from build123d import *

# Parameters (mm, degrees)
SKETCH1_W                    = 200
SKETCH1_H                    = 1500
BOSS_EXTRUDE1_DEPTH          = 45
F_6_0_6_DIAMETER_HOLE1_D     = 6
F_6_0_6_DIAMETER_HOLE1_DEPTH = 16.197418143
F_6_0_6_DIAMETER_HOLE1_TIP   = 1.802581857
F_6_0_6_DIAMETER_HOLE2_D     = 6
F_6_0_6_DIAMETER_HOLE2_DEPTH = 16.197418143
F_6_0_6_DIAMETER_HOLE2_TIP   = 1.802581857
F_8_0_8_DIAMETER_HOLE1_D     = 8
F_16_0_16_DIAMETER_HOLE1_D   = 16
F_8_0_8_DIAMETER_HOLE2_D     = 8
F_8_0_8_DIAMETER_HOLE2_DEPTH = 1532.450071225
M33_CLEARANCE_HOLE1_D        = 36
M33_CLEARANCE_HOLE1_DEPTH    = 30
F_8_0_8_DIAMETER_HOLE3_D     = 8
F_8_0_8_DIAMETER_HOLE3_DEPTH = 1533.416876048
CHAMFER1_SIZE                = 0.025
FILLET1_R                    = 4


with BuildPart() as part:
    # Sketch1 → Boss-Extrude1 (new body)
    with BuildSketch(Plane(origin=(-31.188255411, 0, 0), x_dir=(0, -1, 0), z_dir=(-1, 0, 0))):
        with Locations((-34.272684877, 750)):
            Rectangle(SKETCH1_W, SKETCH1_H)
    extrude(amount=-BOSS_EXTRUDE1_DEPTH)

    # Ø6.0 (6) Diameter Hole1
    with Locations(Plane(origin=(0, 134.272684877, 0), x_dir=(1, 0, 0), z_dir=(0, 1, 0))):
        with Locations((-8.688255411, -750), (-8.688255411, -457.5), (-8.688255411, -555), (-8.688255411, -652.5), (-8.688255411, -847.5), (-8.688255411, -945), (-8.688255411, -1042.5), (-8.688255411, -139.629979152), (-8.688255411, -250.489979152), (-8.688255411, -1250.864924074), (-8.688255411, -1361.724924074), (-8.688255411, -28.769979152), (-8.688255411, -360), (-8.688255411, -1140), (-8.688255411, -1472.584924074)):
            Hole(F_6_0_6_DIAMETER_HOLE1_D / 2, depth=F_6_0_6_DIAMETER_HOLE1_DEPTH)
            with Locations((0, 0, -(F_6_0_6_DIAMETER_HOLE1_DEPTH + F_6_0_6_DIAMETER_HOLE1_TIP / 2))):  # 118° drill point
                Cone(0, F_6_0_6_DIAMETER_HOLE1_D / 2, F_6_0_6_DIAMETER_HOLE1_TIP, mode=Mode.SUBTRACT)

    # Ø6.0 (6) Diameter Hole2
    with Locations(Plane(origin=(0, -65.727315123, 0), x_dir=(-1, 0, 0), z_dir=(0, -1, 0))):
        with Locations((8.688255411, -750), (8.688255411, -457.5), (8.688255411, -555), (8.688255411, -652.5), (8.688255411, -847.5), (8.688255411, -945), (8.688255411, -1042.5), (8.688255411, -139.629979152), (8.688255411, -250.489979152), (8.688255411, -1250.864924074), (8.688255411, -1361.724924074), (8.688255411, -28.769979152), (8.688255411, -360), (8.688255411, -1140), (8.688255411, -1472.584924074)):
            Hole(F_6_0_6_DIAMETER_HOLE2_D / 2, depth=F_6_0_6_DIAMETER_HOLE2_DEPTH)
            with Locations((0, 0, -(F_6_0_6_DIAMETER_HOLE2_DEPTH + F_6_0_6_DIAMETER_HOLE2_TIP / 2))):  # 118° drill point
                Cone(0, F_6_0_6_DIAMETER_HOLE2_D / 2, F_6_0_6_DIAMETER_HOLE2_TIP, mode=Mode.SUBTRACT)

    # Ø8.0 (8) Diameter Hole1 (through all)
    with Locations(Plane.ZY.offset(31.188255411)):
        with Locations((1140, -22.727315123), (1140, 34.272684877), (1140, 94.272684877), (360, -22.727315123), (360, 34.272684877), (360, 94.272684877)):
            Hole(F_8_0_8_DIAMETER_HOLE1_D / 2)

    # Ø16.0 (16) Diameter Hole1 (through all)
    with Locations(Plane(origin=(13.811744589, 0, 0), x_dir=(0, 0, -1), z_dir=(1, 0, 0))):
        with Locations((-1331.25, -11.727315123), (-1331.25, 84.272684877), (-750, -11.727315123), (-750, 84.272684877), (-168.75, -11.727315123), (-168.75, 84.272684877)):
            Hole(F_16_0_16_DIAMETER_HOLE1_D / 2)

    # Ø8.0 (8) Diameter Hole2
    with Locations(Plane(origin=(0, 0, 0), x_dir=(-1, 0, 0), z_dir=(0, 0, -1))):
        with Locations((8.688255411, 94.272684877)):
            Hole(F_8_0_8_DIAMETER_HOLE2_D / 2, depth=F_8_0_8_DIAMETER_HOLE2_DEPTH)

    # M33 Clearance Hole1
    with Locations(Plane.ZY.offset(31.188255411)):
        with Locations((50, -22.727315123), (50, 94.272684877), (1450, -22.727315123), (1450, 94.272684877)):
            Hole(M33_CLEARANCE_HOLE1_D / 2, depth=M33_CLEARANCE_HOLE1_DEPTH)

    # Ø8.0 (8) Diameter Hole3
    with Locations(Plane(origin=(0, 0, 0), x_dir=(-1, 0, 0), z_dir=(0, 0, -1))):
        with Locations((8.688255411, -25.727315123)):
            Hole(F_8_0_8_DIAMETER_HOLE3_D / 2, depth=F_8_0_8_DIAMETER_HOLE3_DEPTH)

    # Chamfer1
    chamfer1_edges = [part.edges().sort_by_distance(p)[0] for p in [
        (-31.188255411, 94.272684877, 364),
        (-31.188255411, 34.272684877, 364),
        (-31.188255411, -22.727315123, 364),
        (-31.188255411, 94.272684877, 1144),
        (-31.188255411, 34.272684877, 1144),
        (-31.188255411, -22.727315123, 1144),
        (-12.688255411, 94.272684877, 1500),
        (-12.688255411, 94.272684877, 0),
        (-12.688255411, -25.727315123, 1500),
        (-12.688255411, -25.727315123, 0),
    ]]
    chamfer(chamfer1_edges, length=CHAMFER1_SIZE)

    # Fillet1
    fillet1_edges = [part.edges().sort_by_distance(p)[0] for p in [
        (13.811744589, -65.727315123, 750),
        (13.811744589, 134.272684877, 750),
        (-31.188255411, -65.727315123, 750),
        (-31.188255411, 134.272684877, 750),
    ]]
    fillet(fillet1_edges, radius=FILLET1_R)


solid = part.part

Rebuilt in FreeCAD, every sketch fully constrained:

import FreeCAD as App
import Part
import Sketcher
from FreeCAD import Vector


def edges_at(feature, points):
    """Names of the edges that pass closest to the given points."""
    edges = feature.Shape.Edges
    near = lambda p: min(range(len(edges)), key=lambda i: edges[i].distToShape(Part.Vertex(*p))[0])
    return sorted({f"Edge{near(p) + 1}" for p in points})

doc = App.newDocument("Part")
body = doc.addObject("PartDesign::Body", "Body")

# Sketch on YZ plane
sketch1 = doc.addObject("Sketcher::SketchObject", "Sketch")
body.addObject(sketch1)
sketch1.AttachmentSupport = (doc.YZ_Plane, [""])
sketch1.MapMode = "FlatFace"
sketch1.AttachmentOffset = App.Placement(Vector(0, 0, -31.188255), App.Rotation())
sketch1.addGeometry([
    Part.LineSegment(Vector(134.272685, 1500, 0), Vector(134.272685, 0, 0)),
    Part.LineSegment(Vector(134.272685, 0, 0), Vector(-65.727315, 0, 0)),
    Part.LineSegment(Vector(-65.727315, 0, 0), Vector(-65.727315, 1500, 0)),
    Part.LineSegment(Vector(-65.727315, 1500, 0), Vector(134.272685, 1500, 0)),
], False)
sketch1.addConstraint([
    Sketcher.Constraint("Coincident", 0, 2, 1, 1),
    Sketcher.Constraint("Coincident", 1, 2, 2, 1),
    Sketcher.Constraint("Coincident", 2, 2, 3, 1),
    Sketcher.Constraint("Coincident", 3, 2, 0, 1),
    Sketcher.Constraint("Vertical", 0),
    Sketcher.Constraint("Horizontal", 1),
    Sketcher.Constraint("Vertical", 2),
    Sketcher.Constraint("Horizontal", 3),
    Sketcher.Constraint("PointOnObject", 0, 2, -1),
    Sketcher.Constraint("DistanceX", 1, 2, 1, 1, 200.0),
    Sketcher.Constraint("DistanceY", 0, 2, 0, 1, 1500.0),
    Sketcher.Constraint("DistanceX", -1, 1, 0, 2, 134.272685),
])
pad1 = doc.addObject("PartDesign::Pad", "Pad")
body.addObject(pad1)
pad1.Profile = sketch1
pad1.Length = 45

# Sketch on XZ plane
sketch2 = doc.addObject("Sketcher::SketchObject", "Sketch001")
body.addObject(sketch2)
sketch2.AttachmentSupport = (doc.XZ_Plane, [""])
sketch2.MapMode = "FlatFace"
sketch2.AttachmentOffset = App.Placement(Vector(0, 0, -134.272685), App.Rotation())
sketch2.addGeometry([
    Part.Circle(Vector(-8.688255, 750, 0), Vector(0, 0, 1), 3),  # 0
    Part.Circle(Vector(-8.688255, 457.5, 0), Vector(0, 0, 1), 3),  # 1
    Part.Circle(Vector(-8.688255, 555, 0), Vector(0, 0, 1), 3),  # 2
    Part.Circle(Vector(-8.688255, 652.5, 0), Vector(0, 0, 1), 3),  # 3
    Part.Circle(Vector(-8.688255, 847.5, 0), Vector(0, 0, 1), 3),  # 4
    Part.Circle(Vector(-8.688255, 945, 0), Vector(0, 0, 1), 3),  # 5
    Part.Circle(Vector(-8.688255, 1042.5, 0), Vector(0, 0, 1), 3),  # 6
    Part.Circle(Vector(-8.688255, 139.629979, 0), Vector(0, 0, 1), 3),  # 7
    Part.Circle(Vector(-8.688255, 250.489979, 0), Vector(0, 0, 1), 3),  # 8
    Part.Circle(Vector(-8.688255, 1250.864924, 0), Vector(0, 0, 1), 3),  # 9
    Part.Circle(Vector(-8.688255, 1361.724924, 0), Vector(0, 0, 1), 3),  # 10
    Part.Circle(Vector(-8.688255, 28.769979, 0), Vector(0, 0, 1), 3),  # 11
    Part.Circle(Vector(-8.688255, 360, 0), Vector(0, 0, 1), 3),  # 12
    Part.Circle(Vector(-8.688255, 1140, 0), Vector(0, 0, 1), 3),  # 13
    Part.Circle(Vector(-8.688255, 1472.584924, 0), Vector(0, 0, 1), 3),  # 14
], False)
sketch2.addConstraint([
    Sketcher.Constraint("Equal", 0, 1),
    Sketcher.Constraint("Equal", 1, 2),
    Sketcher.Constraint("Equal", 2, 3),
    Sketcher.Constraint("Equal", 3, 4),
    Sketcher.Constraint("Equal", 4, 5),
    Sketcher.Constraint("Equal", 5, 6),
    Sketcher.Constraint("Equal", 6, 7),
    Sketcher.Constraint("Equal", 7, 8),
    Sketcher.Constraint("Equal", 8, 9),
    Sketcher.Constraint("Equal", 9, 10),
    Sketcher.Constraint("Equal", 10, 11),
    Sketcher.Constraint("Equal", 11, 12),
    Sketcher.Constraint("Equal", 12, 13),
    Sketcher.Constraint("Equal", 13, 14),
    Sketcher.Constraint("Vertical", 0, 3, 1, 3),
    Sketcher.Constraint("Vertical", 1, 3, 2, 3),
    Sketcher.Constraint("Vertical", 2, 3, 3, 3),
    Sketcher.Constraint("Vertical", 3, 3, 4, 3),
    Sketcher.Constraint("Vertical", 4, 3, 5, 3),
    Sketcher.Constraint("Vertical", 5, 3, 6, 3),
    Sketcher.Constraint("Vertical", 6, 3, 7, 3),
    Sketcher.Constraint("Vertical", 7, 3, 8, 3),
    Sketcher.Constraint("Vertical", 8, 3, 9, 3),
    Sketcher.Constraint("Vertical", 9, 3, 10, 3),
    Sketcher.Constraint("Vertical", 10, 3, 11, 3),
    Sketcher.Constraint("Vertical", 11, 3, 12, 3),
    Sketcher.Constraint("Vertical", 12, 3, 13, 3),
    Sketcher.Constraint("Vertical", 13, 3, 14, 3),
    Sketcher.Constraint("Diameter", 0, 6.0),
    Sketcher.Constraint("DistanceY", -1, 1, 0, 3, 750.0),
    Sketcher.Constraint("DistanceY", -1, 1, 2, 3, 555.0),
    Sketcher.Constraint("DistanceY", -1, 1, 5, 3, 945.0),
    Sketcher.Constraint("DistanceY", -1, 1, 12, 3, 360.0),
    Sketcher.Constraint("DistanceY", -1, 1, 13, 3, 1140.0),
    Sketcher.Constraint("DistanceY", 1, 3, 3, 3, 195.0),
    Sketcher.Constraint("DistanceY", 3, 3, 4, 3, 195.0),
    Sketcher.Constraint("DistanceY", 4, 3, 6, 3, 195.0),
    Sketcher.Constraint("DistanceY", -1, 1, 1, 3, 457.5),
    Sketcher.Constraint("DistanceY", 7, 3, 8, 3, 110.86),
    Sketcher.Constraint("DistanceY", 9, 3, 10, 3, 110.86),
    Sketcher.Constraint("DistanceY", 11, 3, 7, 3, 110.86),
    Sketcher.Constraint("DistanceY", 10, 3, 14, 3, 110.86),
    Sketcher.Constraint("DistanceY", -1, 1, 7, 3, 139.629979),
    Sketcher.Constraint("DistanceX", 0, 3, -1, 1, 8.688255),
    Sketcher.Constraint("DistanceY", -1, 1, 9, 3, 1250.864924),
])
doc.recompute()
hole = doc.addObject("PartDesign::Hole", "Hole")
body.addObject(hole)
hole.Profile = sketch2
hole.ThreadType = "None"
hole.Diameter = 6
hole.DepthType = "Dimension"
hole.Depth = 16.197418
hole.DrillPoint = "Angled"
hole.DrillPointAngle = 118
hole.Reversed = True

# Sketch on XZ plane
sketch3 = doc.addObject("Sketcher::SketchObject", "Sketch002")
body.addObject(sketch3)
sketch3.AttachmentSupport = (doc.XZ_Plane, [""])
sketch3.MapMode = "FlatFace"
sketch3.AttachmentOffset = App.Placement(Vector(0, 0, 65.727315), App.Rotation())
sketch3.addGeometry([
    Part.Circle(Vector(-8.688255, 750, 0), Vector(0, 0, 1), 3),  # 0
    Part.Circle(Vector(-8.688255, 457.5, 0), Vector(0, 0, 1), 3),  # 1
    Part.Circle(Vector(-8.688255, 555, 0), Vector(0, 0, 1), 3),  # 2
    Part.Circle(Vector(-8.688255, 652.5, 0), Vector(0, 0, 1), 3),  # 3
    Part.Circle(Vector(-8.688255, 847.5, 0), Vector(0, 0, 1), 3),  # 4
    Part.Circle(Vector(-8.688255, 945, 0), Vector(0, 0, 1), 3),  # 5
    Part.Circle(Vector(-8.688255, 1042.5, 0), Vector(0, 0, 1), 3),  # 6
    Part.Circle(Vector(-8.688255, 139.629979, 0), Vector(0, 0, 1), 3),  # 7
    Part.Circle(Vector(-8.688255, 250.489979, 0), Vector(0, 0, 1), 3),  # 8
    Part.Circle(Vector(-8.688255, 1250.864924, 0), Vector(0, 0, 1), 3),  # 9
    Part.Circle(Vector(-8.688255, 1361.724924, 0), Vector(0, 0, 1), 3),  # 10
    Part.Circle(Vector(-8.688255, 28.769979, 0), Vector(0, 0, 1), 3),  # 11
    Part.Circle(Vector(-8.688255, 360, 0), Vector(0, 0, 1), 3),  # 12
    Part.Circle(Vector(-8.688255, 1140, 0), Vector(0, 0, 1), 3),  # 13
    Part.Circle(Vector(-8.688255, 1472.584924, 0), Vector(0, 0, 1), 3),  # 14
], False)
sketch3.addConstraint([
    Sketcher.Constraint("Equal", 0, 1),
    Sketcher.Constraint("Equal", 1, 2),
    Sketcher.Constraint("Equal", 2, 3),
    Sketcher.Constraint("Equal", 3, 4),
    Sketcher.Constraint("Equal", 4, 5),
    Sketcher.Constraint("Equal", 5, 6),
    Sketcher.Constraint("Equal", 6, 7),
    Sketcher.Constraint("Equal", 7, 8),
    Sketcher.Constraint("Equal", 8, 9),
    Sketcher.Constraint("Equal", 9, 10),
    Sketcher.Constraint("Equal", 10, 11),
    Sketcher.Constraint("Equal", 11, 12),
    Sketcher.Constraint("Equal", 12, 13),
    Sketcher.Constraint("Equal", 13, 14),
    Sketcher.Constraint("Vertical", 0, 3, 1, 3),
    Sketcher.Constraint("Vertical", 1, 3, 2, 3),
    Sketcher.Constraint("Vertical", 2, 3, 3, 3),
    Sketcher.Constraint("Vertical", 3, 3, 4, 3),
    Sketcher.Constraint("Vertical", 4, 3, 5, 3),
    Sketcher.Constraint("Vertical", 5, 3, 6, 3),
    Sketcher.Constraint("Vertical", 6, 3, 7, 3),
    Sketcher.Constraint("Vertical", 7, 3, 8, 3),
    Sketcher.Constraint("Vertical", 8, 3, 9, 3),
    Sketcher.Constraint("Vertical", 9, 3, 10, 3),
    Sketcher.Constraint("Vertical", 10, 3, 11, 3),
    Sketcher.Constraint("Vertical", 11, 3, 12, 3),
    Sketcher.Constraint("Vertical", 12, 3, 13, 3),
    Sketcher.Constraint("Vertical", 13, 3, 14, 3),
    Sketcher.Constraint("Diameter", 0, 6.0),
    Sketcher.Constraint("DistanceY", -1, 1, 0, 3, 750.0),
    Sketcher.Constraint("DistanceY", -1, 1, 2, 3, 555.0),
    Sketcher.Constraint("DistanceY", -1, 1, 5, 3, 945.0),
    Sketcher.Constraint("DistanceY", -1, 1, 12, 3, 360.0),
    Sketcher.Constraint("DistanceY", -1, 1, 13, 3, 1140.0),
    Sketcher.Constraint("DistanceY", 1, 3, 3, 3, 195.0),
    Sketcher.Constraint("DistanceY", 3, 3, 4, 3, 195.0),
    Sketcher.Constraint("DistanceY", 4, 3, 6, 3, 195.0),
    Sketcher.Constraint("DistanceY", -1, 1, 1, 3, 457.5),
    Sketcher.Constraint("DistanceY", 7, 3, 8, 3, 110.86),
    Sketcher.Constraint("DistanceY", 9, 3, 10, 3, 110.86),
    Sketcher.Constraint("DistanceY", 11, 3, 7, 3, 110.86),
    Sketcher.Constraint("DistanceY", 10, 3, 14, 3, 110.86),
    Sketcher.Constraint("DistanceY", -1, 1, 7, 3, 139.629979),
    Sketcher.Constraint("DistanceX", 0, 3, -1, 1, 8.688255),
    Sketcher.Constraint("DistanceY", -1, 1, 9, 3, 1250.864924),
])
doc.recompute()
hole2 = doc.addObject("PartDesign::Hole", "Hole001")
body.addObject(hole2)
hole2.Profile = sketch3
hole2.ThreadType = "None"
hole2.Diameter = 6
hole2.DepthType = "Dimension"
hole2.Depth = 16.197418
hole2.DrillPoint = "Angled"
hole2.DrillPointAngle = 118

# Sketch on YZ plane
sketch4 = doc.addObject("Sketcher::SketchObject", "Sketch003")
body.addObject(sketch4)
sketch4.AttachmentSupport = (doc.YZ_Plane, [""])
sketch4.MapMode = "FlatFace"
sketch4.AttachmentOffset = App.Placement(Vector(0, 0, -31.188255), App.Rotation())
sketch4.addGeometry([
    Part.Circle(Vector(-22.727315, 1140, 0), Vector(0, 0, 1), 4),  # 0
    Part.Circle(Vector(34.272685, 1140, 0), Vector(0, 0, 1), 4),  # 1
    Part.Circle(Vector(94.272685, 1140, 0), Vector(0, 0, 1), 4),  # 2
    Part.Circle(Vector(-22.727315, 360, 0), Vector(0, 0, 1), 4),  # 3
    Part.Circle(Vector(34.272685, 360, 0), Vector(0, 0, 1), 4),  # 4
    Part.Circle(Vector(94.272685, 360, 0), Vector(0, 0, 1), 4),  # 5
], False)
sketch4.addConstraint([
    Sketcher.Constraint("Equal", 0, 1),
    Sketcher.Constraint("Equal", 1, 2),
    Sketcher.Constraint("Equal", 2, 3),
    Sketcher.Constraint("Equal", 3, 4),
    Sketcher.Constraint("Equal", 4, 5),
    Sketcher.Constraint("Horizontal", 0, 3, 1, 3),
    Sketcher.Constraint("Horizontal", 1, 3, 2, 3),
    Sketcher.Constraint("Horizontal", 3, 3, 4, 3),
    Sketcher.Constraint("Horizontal", 4, 3, 5, 3),
    Sketcher.Constraint("Vertical", 0, 3, 3, 3),
    Sketcher.Constraint("Vertical", 1, 3, 4, 3),
    Sketcher.Constraint("Vertical", 2, 3, 5, 3),
    Sketcher.Constraint("Diameter", 0, 8.0),
    Sketcher.Constraint("DistanceY", -1, 1, 0, 3, 1140.0),
    Sketcher.Constraint("DistanceY", -1, 1, 3, 3, 360.0),
    Sketcher.Constraint("DistanceX", 0, 3, 1, 3, 57.0),
    Sketcher.Constraint("DistanceX", 1, 3, 2, 3, 60.0),
    Sketcher.Constraint("DistanceX", 0, 3, -1, 1, 22.727315),
])
doc.recompute()
hole3 = doc.addObject("PartDesign::Hole", "Hole002")
body.addObject(hole3)
hole3.Profile = sketch4
hole3.ThreadType = "None"
hole3.Diameter = 8
hole3.DepthType = "ThroughAll"
hole3.Reversed = True

# Sketch on YZ plane
sketch5 = doc.addObject("Sketcher::SketchObject", "Sketch004")
body.addObject(sketch5)
sketch5.AttachmentSupport = (doc.YZ_Plane, [""])
sketch5.MapMode = "FlatFace"
sketch5.AttachmentOffset = App.Placement(Vector(0, 0, 13.811745), App.Rotation())
sketch5.addGeometry([
    Part.Circle(Vector(-11.727315, 1331.25, 0), Vector(0, 0, 1), 8),  # 0
    Part.Circle(Vector(84.272685, 1331.25, 0), Vector(0, 0, 1), 8),  # 1
    Part.Circle(Vector(-11.727315, 750, 0), Vector(0, 0, 1), 8),  # 2
    Part.Circle(Vector(84.272685, 750, 0), Vector(0, 0, 1), 8),  # 3
    Part.Circle(Vector(-11.727315, 168.75, 0), Vector(0, 0, 1), 8),  # 4
    Part.Circle(Vector(84.272685, 168.75, 0), Vector(0, 0, 1), 8),  # 5
], False)
sketch5.addConstraint([
    Sketcher.Constraint("Equal", 0, 1),
    Sketcher.Constraint("Equal", 1, 2),
    Sketcher.Constraint("Equal", 2, 3),
    Sketcher.Constraint("Equal", 3, 4),
    Sketcher.Constraint("Equal", 4, 5),
    Sketcher.Constraint("Horizontal", 0, 3, 1, 3),
    Sketcher.Constraint("Horizontal", 2, 3, 3, 3),
    Sketcher.Constraint("Horizontal", 4, 3, 5, 3),
    Sketcher.Constraint("Vertical", 0, 3, 2, 3),
    Sketcher.Constraint("Vertical", 1, 3, 3, 3),
    Sketcher.Constraint("Vertical", 2, 3, 4, 3),
    Sketcher.Constraint("Vertical", 3, 3, 5, 3),
    Sketcher.Constraint("Diameter", 0, 16.0),
    Sketcher.Constraint("DistanceY", -1, 1, 2, 3, 750.0),
    Sketcher.Constraint("DistanceX", 0, 3, 1, 3, 96.0),
    Sketcher.Constraint("DistanceY", 4, 3, 0, 3, 1162.5),
    Sketcher.Constraint("DistanceY", -1, 1, 0, 3, 1331.25),
    Sketcher.Constraint("DistanceX", 0, 3, -1, 1, 11.727315),
])
doc.recompute()
hole4 = doc.addObject("PartDesign::Hole", "Hole003")
body.addObject(hole4)
hole4.Profile = sketch5
hole4.ThreadType = "None"
hole4.Diameter = 16
hole4.DepthType = "ThroughAll"

# Sketch on XY plane
sketch6 = doc.addObject("Sketcher::SketchObject", "Sketch005")
body.addObject(sketch6)
sketch6.AttachmentSupport = (doc.XY_Plane, [""])
sketch6.MapMode = "FlatFace"
sketch6.addGeometry(Part.Circle(Vector(-8.688255, 94.272685, 0), Vector(0, 0, 1), 4), False)
sketch6.addConstraint([
    Sketcher.Constraint("Diameter", 0, 8.0),
    Sketcher.Constraint("DistanceX", 0, 3, -1, 1, 8.688255),
    Sketcher.Constraint("DistanceY", -1, 1, 0, 3, 94.272685),
])
doc.recompute()
hole5 = doc.addObject("PartDesign::Hole", "Hole004")
body.addObject(hole5)
hole5.Profile = sketch6
hole5.ThreadType = "None"
hole5.Diameter = 8
hole5.DepthType = "Dimension"
hole5.Depth = 1532.450071
hole5.DrillPoint = "Flat"
hole5.Reversed = True

# Sketch on YZ plane
sketch7 = doc.addObject("Sketcher::SketchObject", "Sketch006")
body.addObject(sketch7)
sketch7.AttachmentSupport = (doc.YZ_Plane, [""])
sketch7.MapMode = "FlatFace"
sketch7.AttachmentOffset = App.Placement(Vector(0, 0, -31.188255), App.Rotation())
sketch7.addGeometry([
    Part.Circle(Vector(-22.727315, 50, 0), Vector(0, 0, 1), 18),
    Part.Circle(Vector(94.272685, 50, 0), Vector(0, 0, 1), 18),
    Part.Circle(Vector(-22.727315, 1450, 0), Vector(0, 0, 1), 18),
    Part.Circle(Vector(94.272685, 1450, 0), Vector(0, 0, 1), 18),
], False)
sketch7.addConstraint([
    Sketcher.Constraint("Equal", 0, 1),
    Sketcher.Constraint("Equal", 1, 2),
    Sketcher.Constraint("Equal", 2, 3),
    Sketcher.Constraint("Horizontal", 0, 3, 1, 3),
    Sketcher.Constraint("Horizontal", 2, 3, 3, 3),
    Sketcher.Constraint("Vertical", 0, 3, 2, 3),
    Sketcher.Constraint("Vertical", 1, 3, 3, 3),
    Sketcher.Constraint("Diameter", 0, 36.0),
    Sketcher.Constraint("DistanceY", -1, 1, 0, 3, 50.0),
    Sketcher.Constraint("DistanceY", -1, 1, 2, 3, 1450.0),
    Sketcher.Constraint("DistanceX", 0, 3, 1, 3, 117.0),
    Sketcher.Constraint("DistanceX", 0, 3, -1, 1, 22.727315),
])
doc.recompute()
hole6 = doc.addObject("PartDesign::Hole", "Hole005")
body.addObject(hole6)
hole6.Profile = sketch7
hole6.ThreadType = "None"
hole6.Diameter = 36
hole6.DepthType = "Dimension"
hole6.Depth = 30
hole6.DrillPoint = "Flat"
hole6.Reversed = True

# Sketch on XY plane
sketch8 = doc.addObject("Sketcher::SketchObject", "Sketch007")
body.addObject(sketch8)
sketch8.AttachmentSupport = (doc.XY_Plane, [""])
sketch8.MapMode = "FlatFace"
sketch8.addGeometry(Part.Circle(Vector(-8.688255, -25.727315, 0), Vector(0, 0, 1), 4), False)
sketch8.addConstraint([
    Sketcher.Constraint("Diameter", 0, 8.0),
    Sketcher.Constraint("DistanceX", 0, 3, -1, 1, 8.688255),
    Sketcher.Constraint("DistanceY", 0, 3, -1, 1, 25.727315),
])
doc.recompute()
hole7 = doc.addObject("PartDesign::Hole", "Hole006")
body.addObject(hole7)
hole7.Profile = sketch8
hole7.ThreadType = "None"
hole7.Diameter = 8
hole7.DepthType = "Dimension"
hole7.Depth = 1533.416876
hole7.DrillPoint = "Flat"
hole7.Reversed = True
doc.recompute()

chamfer = doc.addObject("PartDesign::Chamfer", "Chamfer")
body.addObject(chamfer)
chamfer.Base = (hole7, edges_at(hole7, [
    (-31.188, 94.273, 364),
    (-31.188, 34.273, 364),
    (-31.188, -22.727, 364),
    (-31.188, 94.273, 1144),
    (-31.188, 34.273, 1144),
    (-31.188, -22.727, 1144),
    (-12.688, 94.273, 1500),
    (-12.688, 94.273, 0),
    (-12.688, -25.727, 1500),
    (-12.688, -25.727, 0),
]))
chamfer.Size = 0.025
doc.recompute()

fillet = doc.addObject("PartDesign::Fillet", "Fillet")
body.addObject(fillet)
fillet.Base = (chamfer, edges_at(chamfer, [
    (13.812, -65.727, 750),
    (13.812, 134.273, 750),
    (-31.188, -65.727, 750),
    (-31.188, 134.273, 750),
]))
fillet.Radius = 4

doc.recompute()
